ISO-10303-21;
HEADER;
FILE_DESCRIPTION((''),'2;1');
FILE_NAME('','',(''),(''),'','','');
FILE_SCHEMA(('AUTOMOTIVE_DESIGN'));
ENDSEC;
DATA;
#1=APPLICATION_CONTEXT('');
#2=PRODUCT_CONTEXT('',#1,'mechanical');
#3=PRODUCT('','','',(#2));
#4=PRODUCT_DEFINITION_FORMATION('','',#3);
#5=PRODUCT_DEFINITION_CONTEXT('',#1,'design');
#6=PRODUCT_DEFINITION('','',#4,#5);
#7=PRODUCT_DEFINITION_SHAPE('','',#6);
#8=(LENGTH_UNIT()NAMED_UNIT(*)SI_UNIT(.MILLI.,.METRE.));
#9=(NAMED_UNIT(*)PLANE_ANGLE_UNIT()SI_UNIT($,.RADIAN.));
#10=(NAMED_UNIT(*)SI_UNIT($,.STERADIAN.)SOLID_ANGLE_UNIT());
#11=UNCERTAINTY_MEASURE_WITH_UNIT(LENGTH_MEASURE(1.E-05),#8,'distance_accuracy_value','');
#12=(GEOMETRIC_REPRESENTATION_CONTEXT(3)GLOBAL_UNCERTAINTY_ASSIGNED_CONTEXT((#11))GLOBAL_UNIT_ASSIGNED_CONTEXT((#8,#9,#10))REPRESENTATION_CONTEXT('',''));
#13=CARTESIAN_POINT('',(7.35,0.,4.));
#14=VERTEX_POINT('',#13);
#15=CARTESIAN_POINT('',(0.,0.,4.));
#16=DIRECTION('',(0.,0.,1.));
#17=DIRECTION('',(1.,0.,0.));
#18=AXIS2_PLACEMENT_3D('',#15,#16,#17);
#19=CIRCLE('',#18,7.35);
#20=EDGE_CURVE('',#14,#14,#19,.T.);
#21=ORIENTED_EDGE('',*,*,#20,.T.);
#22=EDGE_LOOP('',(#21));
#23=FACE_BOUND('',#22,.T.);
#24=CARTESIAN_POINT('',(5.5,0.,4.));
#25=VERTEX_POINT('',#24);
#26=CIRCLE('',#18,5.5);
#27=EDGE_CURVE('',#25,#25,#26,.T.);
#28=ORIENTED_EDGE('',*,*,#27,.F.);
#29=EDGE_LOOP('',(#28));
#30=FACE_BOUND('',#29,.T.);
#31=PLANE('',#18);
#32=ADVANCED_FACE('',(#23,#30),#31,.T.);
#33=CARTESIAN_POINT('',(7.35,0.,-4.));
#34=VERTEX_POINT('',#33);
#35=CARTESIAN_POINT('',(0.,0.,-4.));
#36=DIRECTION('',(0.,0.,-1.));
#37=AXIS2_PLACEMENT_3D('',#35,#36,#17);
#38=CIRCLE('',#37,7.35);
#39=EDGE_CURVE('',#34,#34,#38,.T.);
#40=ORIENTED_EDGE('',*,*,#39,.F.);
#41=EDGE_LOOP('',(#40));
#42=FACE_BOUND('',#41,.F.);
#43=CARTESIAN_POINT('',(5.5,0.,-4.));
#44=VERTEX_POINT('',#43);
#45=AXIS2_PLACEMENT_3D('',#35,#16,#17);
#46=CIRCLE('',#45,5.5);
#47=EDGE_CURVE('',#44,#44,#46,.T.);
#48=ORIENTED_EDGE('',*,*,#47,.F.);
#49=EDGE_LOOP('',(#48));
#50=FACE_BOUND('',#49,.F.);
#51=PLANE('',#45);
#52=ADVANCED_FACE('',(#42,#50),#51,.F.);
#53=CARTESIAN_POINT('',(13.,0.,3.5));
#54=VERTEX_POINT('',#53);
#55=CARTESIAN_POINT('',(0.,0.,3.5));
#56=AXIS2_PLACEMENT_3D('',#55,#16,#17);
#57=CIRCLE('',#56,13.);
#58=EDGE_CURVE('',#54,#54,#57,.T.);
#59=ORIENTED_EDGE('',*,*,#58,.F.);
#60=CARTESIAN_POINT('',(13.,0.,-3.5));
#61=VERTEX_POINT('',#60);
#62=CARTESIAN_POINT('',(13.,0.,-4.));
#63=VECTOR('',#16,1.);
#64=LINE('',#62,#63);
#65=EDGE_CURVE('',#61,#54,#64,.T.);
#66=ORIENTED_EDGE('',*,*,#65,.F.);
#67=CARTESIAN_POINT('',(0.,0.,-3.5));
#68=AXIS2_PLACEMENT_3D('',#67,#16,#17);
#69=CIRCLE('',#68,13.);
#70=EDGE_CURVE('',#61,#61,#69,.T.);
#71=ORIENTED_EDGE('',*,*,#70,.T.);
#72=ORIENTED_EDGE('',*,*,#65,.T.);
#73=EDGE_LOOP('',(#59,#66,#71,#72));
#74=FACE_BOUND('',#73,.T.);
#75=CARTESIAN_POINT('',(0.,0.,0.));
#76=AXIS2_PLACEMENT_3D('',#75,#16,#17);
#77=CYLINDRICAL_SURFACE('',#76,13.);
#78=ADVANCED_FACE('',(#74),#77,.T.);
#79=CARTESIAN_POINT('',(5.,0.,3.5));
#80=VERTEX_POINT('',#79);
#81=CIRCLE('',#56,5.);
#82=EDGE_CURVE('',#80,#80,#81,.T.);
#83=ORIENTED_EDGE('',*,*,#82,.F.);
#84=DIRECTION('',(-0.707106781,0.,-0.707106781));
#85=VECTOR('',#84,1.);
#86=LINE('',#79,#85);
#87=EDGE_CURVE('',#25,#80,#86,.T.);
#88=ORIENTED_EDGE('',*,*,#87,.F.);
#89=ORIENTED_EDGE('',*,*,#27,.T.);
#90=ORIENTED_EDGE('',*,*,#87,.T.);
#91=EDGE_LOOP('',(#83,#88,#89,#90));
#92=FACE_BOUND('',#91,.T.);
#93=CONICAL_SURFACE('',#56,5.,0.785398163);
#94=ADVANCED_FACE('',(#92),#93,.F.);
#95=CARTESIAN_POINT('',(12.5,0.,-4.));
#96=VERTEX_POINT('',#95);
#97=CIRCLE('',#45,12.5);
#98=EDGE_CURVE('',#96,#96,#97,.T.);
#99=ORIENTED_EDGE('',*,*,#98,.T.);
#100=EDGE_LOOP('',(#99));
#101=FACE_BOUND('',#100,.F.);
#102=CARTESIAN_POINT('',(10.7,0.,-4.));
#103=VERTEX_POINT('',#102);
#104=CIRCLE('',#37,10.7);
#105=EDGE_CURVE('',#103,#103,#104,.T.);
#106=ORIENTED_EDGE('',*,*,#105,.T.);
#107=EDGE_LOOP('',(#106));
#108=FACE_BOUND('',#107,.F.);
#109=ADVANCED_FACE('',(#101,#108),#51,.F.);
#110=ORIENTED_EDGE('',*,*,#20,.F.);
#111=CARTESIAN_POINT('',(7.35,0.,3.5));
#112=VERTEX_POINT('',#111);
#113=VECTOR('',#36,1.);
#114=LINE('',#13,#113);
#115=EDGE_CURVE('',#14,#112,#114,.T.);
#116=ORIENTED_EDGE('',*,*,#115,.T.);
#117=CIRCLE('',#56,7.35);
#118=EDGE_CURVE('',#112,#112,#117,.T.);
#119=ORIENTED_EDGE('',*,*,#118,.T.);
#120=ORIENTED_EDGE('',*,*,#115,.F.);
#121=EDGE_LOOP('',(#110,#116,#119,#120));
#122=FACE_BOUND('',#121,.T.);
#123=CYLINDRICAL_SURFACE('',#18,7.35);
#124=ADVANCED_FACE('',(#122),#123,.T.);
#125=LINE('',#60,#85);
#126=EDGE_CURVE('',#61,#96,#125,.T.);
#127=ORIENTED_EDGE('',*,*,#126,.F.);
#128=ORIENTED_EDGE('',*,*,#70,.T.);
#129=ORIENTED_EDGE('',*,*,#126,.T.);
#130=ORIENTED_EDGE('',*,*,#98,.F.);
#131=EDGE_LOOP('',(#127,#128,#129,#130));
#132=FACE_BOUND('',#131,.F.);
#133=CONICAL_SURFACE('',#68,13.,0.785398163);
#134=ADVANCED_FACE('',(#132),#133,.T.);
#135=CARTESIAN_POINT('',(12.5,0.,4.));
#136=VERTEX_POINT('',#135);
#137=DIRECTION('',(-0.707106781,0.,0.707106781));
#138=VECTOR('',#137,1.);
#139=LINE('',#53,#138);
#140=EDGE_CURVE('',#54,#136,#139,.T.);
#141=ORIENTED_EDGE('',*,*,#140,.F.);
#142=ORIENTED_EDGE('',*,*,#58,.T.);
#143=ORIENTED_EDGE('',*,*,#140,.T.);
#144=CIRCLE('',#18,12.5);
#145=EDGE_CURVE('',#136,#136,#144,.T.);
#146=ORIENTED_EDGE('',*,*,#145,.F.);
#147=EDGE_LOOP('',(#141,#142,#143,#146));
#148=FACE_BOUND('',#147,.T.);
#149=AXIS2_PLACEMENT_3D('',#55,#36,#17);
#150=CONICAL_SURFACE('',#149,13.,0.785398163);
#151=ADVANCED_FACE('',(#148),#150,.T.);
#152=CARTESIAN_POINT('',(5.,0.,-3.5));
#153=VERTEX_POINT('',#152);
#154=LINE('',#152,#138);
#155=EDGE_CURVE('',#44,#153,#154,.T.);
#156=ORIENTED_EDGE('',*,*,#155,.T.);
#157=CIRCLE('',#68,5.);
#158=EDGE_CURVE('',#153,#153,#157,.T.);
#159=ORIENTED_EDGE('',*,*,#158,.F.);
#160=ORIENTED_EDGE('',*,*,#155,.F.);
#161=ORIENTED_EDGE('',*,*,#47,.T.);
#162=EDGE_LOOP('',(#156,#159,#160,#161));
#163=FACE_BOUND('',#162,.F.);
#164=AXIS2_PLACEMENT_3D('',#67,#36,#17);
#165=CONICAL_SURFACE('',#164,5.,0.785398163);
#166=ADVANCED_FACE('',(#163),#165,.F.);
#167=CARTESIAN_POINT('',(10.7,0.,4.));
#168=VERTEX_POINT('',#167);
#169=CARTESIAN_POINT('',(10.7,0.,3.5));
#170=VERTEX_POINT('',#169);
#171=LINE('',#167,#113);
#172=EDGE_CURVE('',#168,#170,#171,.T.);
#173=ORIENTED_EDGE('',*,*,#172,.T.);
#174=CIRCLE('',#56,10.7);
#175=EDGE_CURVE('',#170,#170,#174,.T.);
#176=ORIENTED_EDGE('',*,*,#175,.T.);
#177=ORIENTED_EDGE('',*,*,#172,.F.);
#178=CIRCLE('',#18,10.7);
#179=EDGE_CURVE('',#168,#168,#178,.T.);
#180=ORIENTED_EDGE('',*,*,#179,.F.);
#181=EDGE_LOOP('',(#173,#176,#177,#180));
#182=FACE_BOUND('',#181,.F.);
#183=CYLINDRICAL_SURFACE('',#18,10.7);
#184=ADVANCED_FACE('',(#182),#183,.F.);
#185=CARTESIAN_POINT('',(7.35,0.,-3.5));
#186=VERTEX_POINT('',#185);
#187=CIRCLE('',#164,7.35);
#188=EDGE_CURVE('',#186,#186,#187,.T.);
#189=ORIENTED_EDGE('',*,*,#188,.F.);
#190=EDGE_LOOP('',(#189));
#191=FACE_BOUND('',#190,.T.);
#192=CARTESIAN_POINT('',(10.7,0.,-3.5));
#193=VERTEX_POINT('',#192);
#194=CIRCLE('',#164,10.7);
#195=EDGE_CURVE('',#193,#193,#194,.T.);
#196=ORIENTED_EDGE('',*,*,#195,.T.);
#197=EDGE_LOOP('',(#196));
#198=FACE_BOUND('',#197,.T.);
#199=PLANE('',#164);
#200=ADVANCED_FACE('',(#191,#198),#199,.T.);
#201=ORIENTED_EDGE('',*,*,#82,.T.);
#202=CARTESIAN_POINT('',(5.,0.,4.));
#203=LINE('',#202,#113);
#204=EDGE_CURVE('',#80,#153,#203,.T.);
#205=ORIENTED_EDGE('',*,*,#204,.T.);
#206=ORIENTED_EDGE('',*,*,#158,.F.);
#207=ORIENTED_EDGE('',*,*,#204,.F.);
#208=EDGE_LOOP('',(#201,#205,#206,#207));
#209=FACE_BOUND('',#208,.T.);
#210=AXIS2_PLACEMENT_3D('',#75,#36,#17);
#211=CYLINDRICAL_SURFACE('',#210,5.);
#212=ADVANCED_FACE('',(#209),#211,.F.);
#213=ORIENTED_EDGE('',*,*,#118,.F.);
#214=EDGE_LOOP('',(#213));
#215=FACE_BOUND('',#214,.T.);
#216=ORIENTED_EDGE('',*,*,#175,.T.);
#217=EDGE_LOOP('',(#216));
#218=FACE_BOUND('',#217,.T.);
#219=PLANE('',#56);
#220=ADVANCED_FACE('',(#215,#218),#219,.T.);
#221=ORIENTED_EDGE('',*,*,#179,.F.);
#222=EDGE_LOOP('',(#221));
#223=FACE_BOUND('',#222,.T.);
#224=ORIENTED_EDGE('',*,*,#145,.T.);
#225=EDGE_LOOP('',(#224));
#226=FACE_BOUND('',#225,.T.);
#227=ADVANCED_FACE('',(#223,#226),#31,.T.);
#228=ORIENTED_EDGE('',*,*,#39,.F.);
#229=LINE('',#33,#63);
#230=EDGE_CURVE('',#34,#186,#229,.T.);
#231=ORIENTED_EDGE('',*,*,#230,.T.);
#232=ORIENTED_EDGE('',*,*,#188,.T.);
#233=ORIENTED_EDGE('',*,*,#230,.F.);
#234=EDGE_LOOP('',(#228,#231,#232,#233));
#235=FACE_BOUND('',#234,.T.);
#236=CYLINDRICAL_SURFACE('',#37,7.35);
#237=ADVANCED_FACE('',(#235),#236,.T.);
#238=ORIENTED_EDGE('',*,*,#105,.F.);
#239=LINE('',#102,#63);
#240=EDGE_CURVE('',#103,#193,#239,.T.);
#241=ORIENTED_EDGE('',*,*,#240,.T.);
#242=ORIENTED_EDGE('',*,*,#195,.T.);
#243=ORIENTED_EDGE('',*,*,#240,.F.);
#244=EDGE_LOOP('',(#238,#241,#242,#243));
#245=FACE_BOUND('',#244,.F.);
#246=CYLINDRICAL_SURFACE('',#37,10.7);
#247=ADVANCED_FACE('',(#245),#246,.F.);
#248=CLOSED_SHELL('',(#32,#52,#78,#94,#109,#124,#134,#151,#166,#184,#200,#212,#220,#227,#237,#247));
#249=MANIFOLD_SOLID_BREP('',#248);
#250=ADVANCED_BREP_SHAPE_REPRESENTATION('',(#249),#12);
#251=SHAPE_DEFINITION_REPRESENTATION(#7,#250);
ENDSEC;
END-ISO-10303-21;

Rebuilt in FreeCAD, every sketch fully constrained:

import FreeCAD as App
import Part
import Sketcher
Q = App.Units.Quantity


def edges_at(feature, points):
    """Names of the edges that pass closest to the given points."""
    edges = feature.Shape.Edges
    near = lambda p: min(range(len(edges)), key=lambda i: edges[i].distToShape(Part.Vertex(*p))[0])
    return sorted({f"Edge{near(p) + 1}" for p in points})

doc = App.newDocument("Part")
params = doc.addObject("Spreadsheet::Sheet", "Params")
for row, (alias, value) in enumerate([
    ("sketch1_diameter", "26 mm"),
    ("sketch1_diameter2", "10 mm"),
    ("pad1_length", "8 mm"),
    ("sketch2_diameter", "21.4 mm"),
    ("sketch2_diameter2", "14.7 mm"),
    ("pocket1_length", "0.5 mm"),
    ("sketch3_diameter", "21.4 mm"),
    ("sketch3_diameter2", "14.7 mm"),
    ("pocket2_length", "0.5 mm"),
    ("chamfer_size", "0.5 mm"),
], start=1):
    params.set(f"A{row}", alias)
    params.set(f"B{row}", "=" + value)
    params.setAlias(f"B{row}", alias)

body = doc.addObject("PartDesign::Body", "Body")

# Sketch on XY plane
sketch1 = body.newObject("Sketcher::SketchObject", "Sketch")
sketch1.AttachmentSupport = (doc.getObject("XY_Plane"), [""])
sketch1.MapMode = "FlatFace"
sketch1.addGeometry(Part.Circle(App.Vector(0, 0, 0), App.Vector(0, 0, 1), 13), False)
sketch1.addGeometry(Part.Circle(App.Vector(0, 0, 0), App.Vector(0, 0, 1), 5), False)
sketch1.addConstraint(Sketcher.Constraint("Coincident", 0, 3, -1, 1))
sketch1.addConstraint(Sketcher.Constraint("Coincident", 1, 3, -1, 1))
sketch1.addConstraint(Sketcher.Constraint("Diameter", 0, Q("26 mm")))
sketch1.addConstraint(Sketcher.Constraint("Diameter", 1, Q("10 mm")))
sketch1.setExpression("Constraints[2]", "Params.sketch1_diameter")
sketch1.setExpression("Constraints[3]", "Params.sketch1_diameter2")
pad1 = body.newObject("PartDesign::Pad", "Pad")
pad1.Profile = sketch1
pad1.setExpression("Length", "Params.pad1_length")
pad1.Midplane = True

# Sketch on XY plane
sketch2 = body.newObject("Sketcher::SketchObject", "Sketch001")
sketch2.AttachmentSupport = (doc.getObject("XY_Plane"), [""])
sketch2.MapMode = "FlatFace"
sketch2.AttachmentOffset = App.Placement(App.Vector(0, 0, -4), App.Rotation())
sketch2.addGeometry(Part.Circle(App.Vector(0, 0, 0), App.Vector(0, 0, 1), 11), False)
sketch2.addGeometry(Part.Circle(App.Vector(0, 0, 0), App.Vector(0, 0, 1), 7), False)
sketch2.addConstraint(Sketcher.Constraint("Coincident", 0, 3, -1, 1))
sketch2.addConstraint(Sketcher.Constraint("Coincident", 1, 3, -1, 1))
sketch2.addConstraint(Sketcher.Constraint("Diameter", 0, Q("21.4 mm")))
sketch2.addConstraint(Sketcher.Constraint("Diameter", 1, Q("14.7 mm")))
sketch2.setExpression("Constraints[2]", "Params.sketch2_diameter")
sketch2.setExpression("Constraints[3]", "Params.sketch2_diameter2")
pocket1 = body.newObject("PartDesign::Pocket", "Pocket")
pocket1.Profile = sketch2
pocket1.setExpression("Length", "Params.pocket1_length")
pocket1.Reversed = True

# Sketch on XY plane
sketch3 = body.newObject("Sketcher::SketchObject", "Sketch002")
sketch3.AttachmentSupport = (doc.getObject("XY_Plane"), [""])
sketch3.MapMode = "FlatFace"
sketch3.AttachmentOffset = App.Placement(App.Vector(0, 0, 4), App.Rotation())
sketch3.addGeometry(Part.Circle(App.Vector(0, 0, 0), App.Vector(0, 0, 1), 11), False)
sketch3.addGeometry(Part.Circle(App.Vector(0, 0, 0), App.Vector(0, 0, 1), 7), False)
sketch3.addConstraint(Sketcher.Constraint("Coincident", 0, 3, -1, 1))
sketch3.addConstraint(Sketcher.Constraint("Coincident", 1, 3, -1, 1))
sketch3.addConstraint(Sketcher.Constraint("Diameter", 0, Q("21.4 mm")))
sketch3.addConstraint(Sketcher.Constraint("Diameter", 1, Q("14.7 mm")))
sketch3.setExpression("Constraints[2]", "Params.sketch3_diameter")
sketch3.setExpression("Constraints[3]", "Params.sketch3_diameter2")
pocket2 = body.newObject("PartDesign::Pocket", "Pocket001")
pocket2.Profile = sketch3
pocket2.setExpression("Length", "Params.pocket2_length")
doc.recompute()

chamfer = body.newObject("PartDesign::Chamfer", "Chamfer")
chamfer.Base = (pocket2, edges_at(pocket2, [
    (-13, 0, -4),
    (-13, 0, 4),
    (-5, 0, -4),
    (-5, 0, 4),
]))
chamfer.setExpression("Size", "Params.chamfer_size")

doc.recompute()
